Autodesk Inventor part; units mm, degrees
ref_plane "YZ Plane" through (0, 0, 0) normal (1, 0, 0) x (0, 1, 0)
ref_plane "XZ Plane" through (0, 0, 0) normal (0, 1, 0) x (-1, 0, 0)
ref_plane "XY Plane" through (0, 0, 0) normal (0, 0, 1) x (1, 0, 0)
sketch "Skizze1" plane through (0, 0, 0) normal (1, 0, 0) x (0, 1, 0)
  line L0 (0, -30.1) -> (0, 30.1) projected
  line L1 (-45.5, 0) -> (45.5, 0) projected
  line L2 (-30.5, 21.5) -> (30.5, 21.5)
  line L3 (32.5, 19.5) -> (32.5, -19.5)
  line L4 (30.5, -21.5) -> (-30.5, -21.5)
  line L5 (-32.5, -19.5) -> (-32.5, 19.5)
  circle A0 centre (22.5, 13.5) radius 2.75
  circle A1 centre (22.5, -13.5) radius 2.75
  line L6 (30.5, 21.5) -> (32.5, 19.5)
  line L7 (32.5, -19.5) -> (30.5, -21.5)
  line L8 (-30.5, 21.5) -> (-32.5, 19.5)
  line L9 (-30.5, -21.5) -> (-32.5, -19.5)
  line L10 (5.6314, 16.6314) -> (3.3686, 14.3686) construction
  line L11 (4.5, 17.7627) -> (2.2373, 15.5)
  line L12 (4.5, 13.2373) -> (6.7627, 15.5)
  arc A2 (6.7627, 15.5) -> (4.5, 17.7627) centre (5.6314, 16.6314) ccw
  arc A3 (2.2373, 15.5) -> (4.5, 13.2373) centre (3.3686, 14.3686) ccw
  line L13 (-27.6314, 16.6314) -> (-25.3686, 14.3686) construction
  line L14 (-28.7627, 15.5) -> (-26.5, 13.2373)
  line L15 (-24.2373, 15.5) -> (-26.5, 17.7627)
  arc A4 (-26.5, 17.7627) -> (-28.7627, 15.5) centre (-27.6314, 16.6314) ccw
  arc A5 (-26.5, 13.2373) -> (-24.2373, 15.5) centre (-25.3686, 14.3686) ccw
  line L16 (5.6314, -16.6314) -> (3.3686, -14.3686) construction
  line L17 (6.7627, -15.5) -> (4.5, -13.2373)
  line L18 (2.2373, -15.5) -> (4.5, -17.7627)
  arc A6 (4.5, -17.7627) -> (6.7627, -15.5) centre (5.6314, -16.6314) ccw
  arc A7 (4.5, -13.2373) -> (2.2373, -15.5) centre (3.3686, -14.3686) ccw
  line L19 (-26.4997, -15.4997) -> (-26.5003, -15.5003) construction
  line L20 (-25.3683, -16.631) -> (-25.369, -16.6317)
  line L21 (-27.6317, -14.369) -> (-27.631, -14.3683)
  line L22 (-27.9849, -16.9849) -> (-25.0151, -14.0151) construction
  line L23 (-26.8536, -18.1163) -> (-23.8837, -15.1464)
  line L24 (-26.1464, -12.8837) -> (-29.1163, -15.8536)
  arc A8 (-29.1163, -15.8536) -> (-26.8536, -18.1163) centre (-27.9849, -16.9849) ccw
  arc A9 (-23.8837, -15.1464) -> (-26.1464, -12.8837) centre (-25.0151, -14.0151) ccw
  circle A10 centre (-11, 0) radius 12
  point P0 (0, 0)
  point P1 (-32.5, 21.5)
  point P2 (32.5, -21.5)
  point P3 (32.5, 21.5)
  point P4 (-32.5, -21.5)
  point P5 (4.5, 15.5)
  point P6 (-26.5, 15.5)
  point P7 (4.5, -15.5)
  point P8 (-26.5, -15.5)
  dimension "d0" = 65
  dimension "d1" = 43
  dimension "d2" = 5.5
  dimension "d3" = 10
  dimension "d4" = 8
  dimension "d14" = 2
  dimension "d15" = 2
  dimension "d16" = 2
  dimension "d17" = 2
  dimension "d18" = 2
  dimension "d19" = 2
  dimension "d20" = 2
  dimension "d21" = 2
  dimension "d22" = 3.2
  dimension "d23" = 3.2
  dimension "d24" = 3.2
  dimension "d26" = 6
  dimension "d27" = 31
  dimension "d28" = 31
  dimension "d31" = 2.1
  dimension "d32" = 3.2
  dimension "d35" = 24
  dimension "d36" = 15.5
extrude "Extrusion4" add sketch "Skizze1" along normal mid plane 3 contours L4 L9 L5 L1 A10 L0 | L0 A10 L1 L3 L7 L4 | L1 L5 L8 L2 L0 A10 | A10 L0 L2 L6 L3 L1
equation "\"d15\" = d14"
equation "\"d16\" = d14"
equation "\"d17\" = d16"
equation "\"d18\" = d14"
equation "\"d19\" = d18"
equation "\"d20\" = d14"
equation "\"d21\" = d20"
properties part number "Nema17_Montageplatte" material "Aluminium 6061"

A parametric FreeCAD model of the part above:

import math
import FreeCAD as App
import Part
import Sketcher


def add_polygon(sketch, points):
    """Adds a closed chain of lines whose ends are joined by coincident constraints."""
    first, n = sketch.GeometryCount, len(points)
    for a, b in zip(points, points[1:] + points[:1]):
        sketch.addGeometry(Part.LineSegment(App.Vector(*a, 0), App.Vector(*b, 0)), False)
    for i in range(n):
        sketch.addConstraint(Sketcher.Constraint("Coincident", first + i, 2, first + (i + 1) % n, 1))

doc = App.newDocument("Part")
body = doc.addObject("PartDesign::Body", "Body")

# Sketch on YZ plane
sketch1 = doc.addObject("Sketcher::SketchObject", "Sketch")
body.addObject(sketch1)
sketch1.AttachmentSupport = (doc.YZ_Plane, [""])
sketch1.MapMode = "FlatFace"
add_polygon(sketch1, [(-30.5, -21.5), (30.5, -21.5), (32.5, -19.5), (32.5, 19.5), (30.5, 21.5), (-30.5, 21.5), (-32.5, 19.5), (-32.5, -19.5)])  # lines 0-7
sketch1.addGeometry(Part.Circle(App.Vector(-11, 0, 0), App.Vector(0, 0, 1), 12), False)  # 8
sketch1.addGeometry(Part.LineSegment(App.Vector(-23.9, -15.1, 0), App.Vector(-26.9, -18.1, 0)), False)  # 9
sketch1.addGeometry(Part.ArcOfCircle(Part.Circle(App.Vector(-28, -17, 0), App.Vector(0, 0, 1), 1.6), math.radians(135), math.radians(315)), False)  # 10
sketch1.addGeometry(Part.LineSegment(App.Vector(-29.1, -15.9, 0), App.Vector(-26.1, -12.9, 0)), False)  # 11
sketch1.addGeometry(Part.ArcOfCircle(Part.Circle(App.Vector(-25, -14, 0), App.Vector(0, 0, 1), 1.6), math.radians(-45), math.radians(135)), False)  # 12
sketch1.addGeometry(Part.ArcOfCircle(Part.Circle(App.Vector(-27.6, 16.6, 0), App.Vector(0, 0, 1), 1.6), math.radians(45), math.radians(225)), False)  # 13
sketch1.addGeometry(Part.LineSegment(App.Vector(-26.5, 17.8, 0), App.Vector(-24.2, 15.5, 0)), False)  # 14
sketch1.addGeometry(Part.ArcOfCircle(Part.Circle(App.Vector(-25.4, 14.4, 0), App.Vector(0, 0, 1), 1.6), math.radians(-135), math.radians(45)), False)  # 15
sketch1.addGeometry(Part.LineSegment(App.Vector(-26.5, 13.2, 0), App.Vector(-28.8, 15.5, 0)), False)  # 16
sketch1.addGeometry(Part.Circle(App.Vector(22.5, -13.5, 0), App.Vector(0, 0, 1), 2.8), False)  # 17
sketch1.addGeometry(Part.LineSegment(App.Vector(4.5, -13.2, 0), App.Vector(6.8, -15.5, 0)), False)  # 18
sketch1.addGeometry(Part.ArcOfCircle(Part.Circle(App.Vector(5.6, -16.6, 0), App.Vector(0, 0, 1), 1.6), math.radians(-135), math.radians(45)), False)  # 19
sketch1.addGeometry(Part.LineSegment(App.Vector(4.5, -17.8, 0), App.Vector(2.2, -15.5, 0)), False)  # 20
sketch1.addGeometry(Part.ArcOfCircle(Part.Circle(App.Vector(3.4, -14.4, 0), App.Vector(0, 0, 1), 1.6), math.radians(45), math.radians(225)), False)  # 21
sketch1.addGeometry(Part.Circle(App.Vector(22.5, 13.5, 0), App.Vector(0, 0, 1), 2.8), False)  # 22
sketch1.addGeometry(Part.ArcOfCircle(Part.Circle(App.Vector(5.6, 16.6, 0), App.Vector(0, 0, 1), 1.6), math.radians(-45), math.radians(135)), False)  # 23
sketch1.addGeometry(Part.LineSegment(App.Vector(6.8, 15.5, 0), App.Vector(4.5, 13.2, 0)), False)  # 24
sketch1.addGeometry(Part.ArcOfCircle(Part.Circle(App.Vector(3.4, 14.4, 0), App.Vector(0, 0, 1), 1.6), math.radians(135), math.radians(315)), False)  # 25
sketch1.addGeometry(Part.LineSegment(App.Vector(2.2, 15.5, 0), App.Vector(4.5, 17.8, 0)), False)  # 26
sketch1.addConstraint(Sketcher.Constraint("Tangent", 9, 2, 10, 2))
sketch1.addConstraint(Sketcher.Constraint("Tangent", 10, 1, 11, 1))
sketch1.addConstraint(Sketcher.Constraint("Tangent", 11, 2, 12, 2))
sketch1.addConstraint(Sketcher.Constraint("Tangent", 12, 1, 9, 1))
sketch1.addConstraint(Sketcher.Constraint("Tangent", 13, 1, 14, 1))
sketch1.addConstraint(Sketcher.Constraint("Tangent", 14, 2, 15, 2))
sketch1.addConstraint(Sketcher.Constraint("Tangent", 15, 1, 16, 1))
sketch1.addConstraint(Sketcher.Constraint("Tangent", 16, 2, 13, 2))
sketch1.addConstraint(Sketcher.Constraint("Tangent", 18, 2, 19, 2))
sketch1.addConstraint(Sketcher.Constraint("Tangent", 19, 1, 20, 1))
sketch1.addConstraint(Sketcher.Constraint("Tangent", 20, 2, 21, 2))
sketch1.addConstraint(Sketcher.Constraint("Tangent", 21, 1, 18, 1))
sketch1.addConstraint(Sketcher.Constraint("Tangent", 23, 1, 24, 1))
sketch1.addConstraint(Sketcher.Constraint("Tangent", 24, 2, 25, 2))
sketch1.addConstraint(Sketcher.Constraint("Tangent", 25, 1, 26, 1))
sketch1.addConstraint(Sketcher.Constraint("Tangent", 26, 2, 23, 2))
sketch1.addConstraint(Sketcher.Constraint("Horizontal", 0))
sketch1.addConstraint(Sketcher.Constraint("Vertical", 2))
sketch1.addConstraint(Sketcher.Constraint("Horizontal", 4))
sketch1.addConstraint(Sketcher.Constraint("Vertical", 6))
sketch1.addConstraint(Sketcher.Constraint("Equal", 10, 12))
sketch1.addConstraint(Sketcher.Constraint("Equal", 12, 13))
sketch1.addConstraint(Sketcher.Constraint("Equal", 13, 15))
sketch1.addConstraint(Sketcher.Constraint("Equal", 15, 19))
sketch1.addConstraint(Sketcher.Constraint("Equal", 19, 21))
sketch1.addConstraint(Sketcher.Constraint("Equal", 17, 22))
sketch1.addConstraint(Sketcher.Constraint("Equal", 21, 23))
sketch1.addConstraint(Sketcher.Constraint("Equal", 23, 25))
sketch1.addConstraint(Sketcher.Constraint("Symmetric", 0, 2, 4, 2, -1, 1))
sketch1.addConstraint(Sketcher.Constraint("Symmetric", 1, 2, 5, 2, -1, 1))
sketch1.addConstraint(Sketcher.Constraint("Symmetric", 17, 3, 22, 3, -1))
sketch1.addConstraint(Sketcher.Constraint("Symmetric", 19, 3, 23, 3, -1))
sketch1.addConstraint(Sketcher.Constraint("Symmetric", 21, 3, 25, 3, -1))
sketch1.addConstraint(Sketcher.Constraint("PointOnObject", 8, 3, -1))
sketch1.addConstraint(Sketcher.Constraint("Perpendicular", 1, 3))
sketch1.addConstraint(Sketcher.Constraint("Perpendicular", 5, 7))
sketch1.addConstraint(Sketcher.Constraint("Perpendicular", 7, 9))
sketch1.addConstraint(Sketcher.Constraint("Perpendicular", 11, 14))
sketch1.addConstraint(Sketcher.Constraint("Parallel", 16, 18))
sketch1.addConstraint(Sketcher.Constraint("Perpendicular", 20, 24))
sketch1.addConstraint(Sketcher.Constraint("Horizontal", 13, 3, 23, 3))
sketch1.addConstraint(Sketcher.Constraint("Horizontal", 15, 3, 25, 3))
sketch1.addConstraint(Sketcher.Constraint("Horizontal", 2, 2, 5, 2))
sketch1.addConstraint(Sketcher.Constraint("Horizontal", 1, 2, 6, 2))
sketch1.addConstraint(Sketcher.Constraint("Horizontal", 14, 2, 16, 2))
sketch1.addConstraint(Sketcher.Constraint("Diameter", 8, 24.0))
sketch1.addConstraint(Sketcher.Constraint("Diameter", 17, 5.5))
sketch1.addConstraint(Sketcher.Constraint("Radius", 10, 1.6))
sketch1.addConstraint(Sketcher.Constraint("DistanceX", 15, 3, 19, 3, 31.0))
sketch1.addConstraint(Sketcher.Constraint("DistanceY", 19, 3, 15, 3, 31.0))
sketch1.addConstraint(Sketcher.Constraint("DistanceX", 17, 3, 0, 2, 8.0))
sketch1.addConstraint(Sketcher.Constraint("DistanceY", 0, 2, 17, 3, 8.0))
sketch1.addConstraint(Sketcher.Constraint("DistanceX", 0, 2, 1, 2, 2.0))
sketch1.addConstraint(Sketcher.Constraint("DistanceX", 5, 2, 13, 1, 6.0))
sketch1.addConstraint(Sketcher.Constraint("DistanceY", 14, 2, 4, 2, 6.0))
sketch1.addConstraint(Sketcher.Constraint("DistanceX", 13, 1, 8, 3, 15.5))
sketch1.addConstraint(Sketcher.Constraint("DistanceX", 0, 1, 0, 2, 61.0))
sketch1.addConstraint(Sketcher.Constraint("Distance", 9, 4.2))
sketch1.addConstraint(Sketcher.Constraint("DistanceX", 10, 3, -1, 1, 27.985))
sketch1.addConstraint(Sketcher.Constraint("DistanceY", 10, 3, -1, 1, 16.985))
pad1 = doc.addObject("PartDesign::Pad", "Pad")
body.addObject(pad1)
pad1.Profile = sketch1
pad1.Length = 3
pad1.Midplane = True

doc.recompute()
